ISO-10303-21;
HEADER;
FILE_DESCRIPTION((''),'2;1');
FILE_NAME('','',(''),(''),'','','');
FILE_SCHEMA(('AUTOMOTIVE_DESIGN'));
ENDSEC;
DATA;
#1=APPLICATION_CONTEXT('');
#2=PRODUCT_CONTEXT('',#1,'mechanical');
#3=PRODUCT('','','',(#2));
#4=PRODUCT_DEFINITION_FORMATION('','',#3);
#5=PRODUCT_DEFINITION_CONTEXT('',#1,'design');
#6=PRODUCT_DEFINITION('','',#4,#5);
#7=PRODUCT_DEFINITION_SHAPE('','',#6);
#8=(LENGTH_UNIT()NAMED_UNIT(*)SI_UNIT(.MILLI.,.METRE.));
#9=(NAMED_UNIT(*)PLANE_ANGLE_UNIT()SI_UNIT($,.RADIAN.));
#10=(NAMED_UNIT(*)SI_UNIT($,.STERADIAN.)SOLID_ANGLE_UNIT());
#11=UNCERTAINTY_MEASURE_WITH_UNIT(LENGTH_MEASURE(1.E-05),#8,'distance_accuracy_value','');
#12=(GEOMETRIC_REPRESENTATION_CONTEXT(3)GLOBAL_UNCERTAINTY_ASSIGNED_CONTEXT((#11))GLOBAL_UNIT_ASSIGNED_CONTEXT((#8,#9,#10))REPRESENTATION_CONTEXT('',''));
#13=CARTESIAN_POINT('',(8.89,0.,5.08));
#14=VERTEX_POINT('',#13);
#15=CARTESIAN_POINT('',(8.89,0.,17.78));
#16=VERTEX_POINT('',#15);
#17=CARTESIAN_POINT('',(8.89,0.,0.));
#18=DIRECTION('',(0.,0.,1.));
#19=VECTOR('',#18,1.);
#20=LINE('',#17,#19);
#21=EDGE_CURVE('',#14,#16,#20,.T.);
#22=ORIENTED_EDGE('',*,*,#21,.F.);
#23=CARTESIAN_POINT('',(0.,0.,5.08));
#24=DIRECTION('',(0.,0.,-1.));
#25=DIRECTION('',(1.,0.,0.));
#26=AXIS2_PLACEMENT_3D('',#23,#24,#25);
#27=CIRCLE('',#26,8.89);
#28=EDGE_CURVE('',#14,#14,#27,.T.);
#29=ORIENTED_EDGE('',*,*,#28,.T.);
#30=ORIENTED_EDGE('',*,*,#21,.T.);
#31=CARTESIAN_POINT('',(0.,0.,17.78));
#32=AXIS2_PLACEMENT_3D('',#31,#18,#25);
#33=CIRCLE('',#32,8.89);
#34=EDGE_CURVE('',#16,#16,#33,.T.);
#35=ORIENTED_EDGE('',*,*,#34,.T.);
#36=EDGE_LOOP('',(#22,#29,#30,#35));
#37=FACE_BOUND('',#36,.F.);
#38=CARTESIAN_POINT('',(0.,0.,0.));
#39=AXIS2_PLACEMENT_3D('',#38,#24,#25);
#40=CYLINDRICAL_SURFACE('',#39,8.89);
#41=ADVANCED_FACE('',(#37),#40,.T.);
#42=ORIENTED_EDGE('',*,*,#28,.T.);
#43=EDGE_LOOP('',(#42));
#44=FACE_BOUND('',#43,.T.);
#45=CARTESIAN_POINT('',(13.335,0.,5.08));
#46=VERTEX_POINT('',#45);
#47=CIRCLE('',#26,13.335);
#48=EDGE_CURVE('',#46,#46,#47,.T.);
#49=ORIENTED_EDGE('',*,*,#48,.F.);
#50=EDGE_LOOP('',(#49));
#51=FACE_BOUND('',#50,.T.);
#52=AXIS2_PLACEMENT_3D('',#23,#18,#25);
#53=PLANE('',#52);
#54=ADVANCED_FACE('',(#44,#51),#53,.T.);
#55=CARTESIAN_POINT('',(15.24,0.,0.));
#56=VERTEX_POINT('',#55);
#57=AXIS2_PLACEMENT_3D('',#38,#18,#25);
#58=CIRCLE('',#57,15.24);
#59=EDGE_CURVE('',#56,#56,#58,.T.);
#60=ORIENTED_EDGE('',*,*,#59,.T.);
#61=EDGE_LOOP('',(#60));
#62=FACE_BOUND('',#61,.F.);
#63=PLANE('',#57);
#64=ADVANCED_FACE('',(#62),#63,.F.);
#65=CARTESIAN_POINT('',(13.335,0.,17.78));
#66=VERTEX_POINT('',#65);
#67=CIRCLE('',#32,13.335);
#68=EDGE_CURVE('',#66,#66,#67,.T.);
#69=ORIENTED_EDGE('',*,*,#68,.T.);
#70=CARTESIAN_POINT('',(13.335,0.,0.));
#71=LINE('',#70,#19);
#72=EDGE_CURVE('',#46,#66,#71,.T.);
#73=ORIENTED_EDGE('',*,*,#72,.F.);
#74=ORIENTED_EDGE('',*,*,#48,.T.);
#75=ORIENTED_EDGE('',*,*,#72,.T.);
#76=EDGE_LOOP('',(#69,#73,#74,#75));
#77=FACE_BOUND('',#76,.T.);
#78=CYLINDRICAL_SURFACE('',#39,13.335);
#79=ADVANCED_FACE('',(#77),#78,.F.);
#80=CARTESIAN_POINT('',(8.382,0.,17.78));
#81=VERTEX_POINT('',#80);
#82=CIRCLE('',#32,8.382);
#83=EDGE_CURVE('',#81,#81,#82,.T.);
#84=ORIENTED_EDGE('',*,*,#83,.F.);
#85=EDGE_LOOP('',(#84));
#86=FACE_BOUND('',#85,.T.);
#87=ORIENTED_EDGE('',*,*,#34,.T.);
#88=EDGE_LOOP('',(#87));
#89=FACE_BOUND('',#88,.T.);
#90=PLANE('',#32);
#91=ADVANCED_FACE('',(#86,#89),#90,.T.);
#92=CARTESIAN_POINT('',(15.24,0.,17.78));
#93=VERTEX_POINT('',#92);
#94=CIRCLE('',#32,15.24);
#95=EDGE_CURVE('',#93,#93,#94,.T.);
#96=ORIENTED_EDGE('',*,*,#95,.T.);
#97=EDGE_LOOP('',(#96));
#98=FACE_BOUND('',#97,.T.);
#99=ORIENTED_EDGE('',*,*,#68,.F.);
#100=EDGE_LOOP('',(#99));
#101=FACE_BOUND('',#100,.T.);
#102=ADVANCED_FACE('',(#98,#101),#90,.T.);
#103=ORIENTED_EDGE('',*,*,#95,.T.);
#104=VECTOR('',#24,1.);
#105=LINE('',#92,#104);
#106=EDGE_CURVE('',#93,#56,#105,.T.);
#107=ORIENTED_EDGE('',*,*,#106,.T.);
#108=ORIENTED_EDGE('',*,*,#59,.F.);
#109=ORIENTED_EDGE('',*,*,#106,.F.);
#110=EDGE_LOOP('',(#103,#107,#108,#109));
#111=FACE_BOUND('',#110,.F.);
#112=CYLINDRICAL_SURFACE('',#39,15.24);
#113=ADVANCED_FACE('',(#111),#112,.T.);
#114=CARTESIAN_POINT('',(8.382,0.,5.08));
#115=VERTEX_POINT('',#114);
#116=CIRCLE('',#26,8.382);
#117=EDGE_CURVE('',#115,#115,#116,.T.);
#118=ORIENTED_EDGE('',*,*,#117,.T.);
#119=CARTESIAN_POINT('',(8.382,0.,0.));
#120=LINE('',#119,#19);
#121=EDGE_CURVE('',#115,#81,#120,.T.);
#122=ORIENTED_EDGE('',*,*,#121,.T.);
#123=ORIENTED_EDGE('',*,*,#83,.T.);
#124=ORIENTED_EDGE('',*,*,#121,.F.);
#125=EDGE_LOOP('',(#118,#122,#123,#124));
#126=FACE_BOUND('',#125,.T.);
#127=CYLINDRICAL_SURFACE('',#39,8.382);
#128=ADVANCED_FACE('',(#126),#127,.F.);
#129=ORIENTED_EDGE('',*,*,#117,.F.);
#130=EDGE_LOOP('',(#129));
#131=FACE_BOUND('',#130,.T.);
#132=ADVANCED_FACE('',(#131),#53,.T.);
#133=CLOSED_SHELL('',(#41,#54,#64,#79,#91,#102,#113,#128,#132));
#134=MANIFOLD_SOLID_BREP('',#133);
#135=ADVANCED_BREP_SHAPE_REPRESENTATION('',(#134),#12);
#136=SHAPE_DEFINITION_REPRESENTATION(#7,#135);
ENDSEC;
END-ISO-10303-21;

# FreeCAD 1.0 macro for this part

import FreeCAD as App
import Part
import Sketcher

V = App.Vector
Q = App.Units.Quantity

doc = App.newDocument("Part")
body = doc.addObject("PartDesign::Body", "Body")

sketch1 = body.newObject("Sketcher::SketchObject", "Sketch")
sketch1.AttachmentSupport = (doc.getObject("XY_Plane"), [""])
sketch1.MapMode = "FlatFace"
sketch1.addGeometry(Part.Circle(V(0, 0, 0), V(0, 0, 1), 15.24), False)
sketch1.addConstraint([
    Sketcher.Constraint("Coincident", 0, 3, -1, 1),
    Sketcher.Constraint("Diameter", 0, Q("1.2 in")),
])
pad1 = body.newObject("PartDesign::Pad", "Pad")
pad1.Profile = sketch1
pad1.Length = Q("0.2 in")

sketch2 = body.newObject("Sketcher::SketchObject", "Sketch001")
sketch2.AttachmentSupport = (doc.getObject("XY_Plane"), [""])
sketch2.MapMode = "FlatFace"
sketch2.addGeometry([
    Part.Circle(V(0, 0, 0), V(0, 0, 1), 15.24),
    Part.Circle(V(0, 0, 0), V(0, 0, 1), 13.335),
], False)
sketch2.addConstraint([
    Sketcher.Constraint("Coincident", 0, 3, -1, 1),
    Sketcher.Constraint("Coincident", 1, 3, -1, 1),
    Sketcher.Constraint("Diameter", 0, Q("1.2 in")),
    Sketcher.Constraint("Diameter", 1, Q("1.05 in")),
])
pad2 = body.newObject("PartDesign::Pad", "Pad001")
pad2.Profile = sketch2
pad2.Length = Q("0.7 in")

sketch3 = body.newObject("Sketcher::SketchObject", "Sketch002")
sketch3.AttachmentSupport = (doc.getObject("XY_Plane"), [""])
sketch3.MapMode = "FlatFace"
sketch3.addGeometry([
    Part.Circle(V(0, 0, 0), V(0, 0, 1), 8.89),
    Part.Circle(V(0, 0, 0), V(0, 0, 1), 8.382),
], False)
sketch3.addConstraint([
    Sketcher.Constraint("Coincident", 0, 3, -1, 1),
    Sketcher.Constraint("Coincident", 1, 3, -1, 1),
    Sketcher.Constraint("Diameter", 0, Q("0.7 in")),
    Sketcher.Constraint("Diameter", 1, Q("0.66 in")),
])
pad3 = body.newObject("PartDesign::Pad", "Pad002")
pad3.Profile = sketch3
pad3.Length = Q("0.7 in")

doc.recompute()
